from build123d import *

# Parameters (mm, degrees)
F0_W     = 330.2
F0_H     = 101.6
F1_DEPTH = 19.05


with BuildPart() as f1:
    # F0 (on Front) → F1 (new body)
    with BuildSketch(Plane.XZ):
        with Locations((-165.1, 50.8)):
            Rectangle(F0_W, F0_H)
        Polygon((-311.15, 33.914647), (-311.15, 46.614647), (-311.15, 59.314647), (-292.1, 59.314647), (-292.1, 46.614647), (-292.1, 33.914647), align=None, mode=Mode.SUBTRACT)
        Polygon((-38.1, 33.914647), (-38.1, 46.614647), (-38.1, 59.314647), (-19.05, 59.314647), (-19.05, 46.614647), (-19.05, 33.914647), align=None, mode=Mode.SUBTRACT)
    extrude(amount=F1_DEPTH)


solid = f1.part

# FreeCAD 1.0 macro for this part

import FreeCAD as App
import Part
import Sketcher
Q = App.Units.Quantity


def add_polygon(sketch, points):
    """Adds a closed chain of lines whose ends are joined by coincident constraints."""
    first, n = sketch.GeometryCount, len(points)
    for a, b in zip(points, points[1:] + points[:1]):
        sketch.addGeometry(Part.LineSegment(App.Vector(*a, 0), App.Vector(*b, 0)), False)
    for i in range(n):
        sketch.addConstraint(Sketcher.Constraint("Coincident", first + i, 2, first + (i + 1) % n, 1))

doc = App.newDocument("Part")
body = doc.addObject("PartDesign::Body", "Body")

sketch1 = doc.addObject("Sketcher::SketchObject", "Sketch")
body.addObject(sketch1)
sketch1.AttachmentSupport = (doc.XZ_Plane, [""])
sketch1.MapMode = "FlatFace"
add_polygon(sketch1, [(-330, 102), (-330, 0), (0, 0), (0, 102)])
add_polygon(sketch1, [(-292, 34), (-311, 34), (-311, 59), (-292, 59)])
add_polygon(sketch1, [(-19, 34), (-38, 34), (-38, 59), (-19, 59)])
sketch1.addConstraint([
    Sketcher.Constraint("Vertical", 0),
    Sketcher.Constraint("Horizontal", 1),
    Sketcher.Constraint("Vertical", 2),
    Sketcher.Constraint("Horizontal", 3),
    Sketcher.Constraint("Horizontal", 4),
    Sketcher.Constraint("Vertical", 5),
    Sketcher.Constraint("Horizontal", 6),
    Sketcher.Constraint("Vertical", 7),
    Sketcher.Constraint("Horizontal", 8),
    Sketcher.Constraint("Vertical", 9),
    Sketcher.Constraint("Horizontal", 10),
    Sketcher.Constraint("Vertical", 11),
    Sketcher.Constraint("Coincident", 1, 2, -1, 1),
    Sketcher.Constraint("Horizontal", 7, 2, 8, 2),
    Sketcher.Constraint("Horizontal", 6, 2, 9, 2),
    Sketcher.Constraint("Equal", 6, 8),
    Sketcher.Constraint("DistanceX", 1, 1, 1, 2, Q("13 in")),
    Sketcher.Constraint("DistanceY", 0, 2, 0, 1, Q("4 in")),
    Sketcher.Constraint("DistanceY", 5, 1, 5, 2, Q("1 in")),
    Sketcher.Constraint("DistanceX", 7, 2, 8, 2, Q("10 in")),
    Sketcher.Constraint("DistanceX", 4, 2, 4, 1, Q("0.75 in")),
    Sketcher.Constraint("DistanceX", 6, 2, -1, 1, Q("11.5 in")),
    Sketcher.Constraint("DistanceY", -1, 1, 4, 2, 33.914647),
])
pad1 = doc.addObject("PartDesign::Pad", "Pad")
body.addObject(pad1)
pad1.Profile = sketch1
pad1.Length = Q("0.75 in")

doc.recompute()
